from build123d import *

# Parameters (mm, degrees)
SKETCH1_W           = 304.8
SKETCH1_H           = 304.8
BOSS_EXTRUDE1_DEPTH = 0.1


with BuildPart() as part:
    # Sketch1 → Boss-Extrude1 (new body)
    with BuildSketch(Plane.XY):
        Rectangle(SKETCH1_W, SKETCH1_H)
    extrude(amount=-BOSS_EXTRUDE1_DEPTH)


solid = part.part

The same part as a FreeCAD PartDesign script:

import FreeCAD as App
import Part
import Sketcher
Q = App.Units.Quantity


def add_polygon(sketch, points):
    """Adds a closed chain of lines whose ends are joined by coincident constraints."""
    first, n = sketch.GeometryCount, len(points)
    for a, b in zip(points, points[1:] + points[:1]):
        sketch.addGeometry(Part.LineSegment(App.Vector(*a, 0), App.Vector(*b, 0)), False)
    for i in range(n):
        sketch.addConstraint(Sketcher.Constraint("Coincident", first + i, 2, first + (i + 1) % n, 1))

doc = App.newDocument("Part")
body = doc.addObject("PartDesign::Body", "Body")

# Sketch on XY plane
sketch1 = body.newObject("Sketcher::SketchObject", "Sketch")
sketch1.AttachmentSupport = (doc.getObject("XY_Plane"), [""])
sketch1.MapMode = "FlatFace"
add_polygon(sketch1, [(-152, 152), (-152, -152), (152, -152), (152, 152)])  # lines 0-3
sketch1.addConstraint(Sketcher.Constraint("Vertical", 0))
sketch1.addConstraint(Sketcher.Constraint("Horizontal", 1))
sketch1.addConstraint(Sketcher.Constraint("Vertical", 2))
sketch1.addConstraint(Sketcher.Constraint("Horizontal", 3))
sketch1.addConstraint(Sketcher.Constraint("Symmetric", 0, 2, 2, 2, -1, 1))
sketch1.addConstraint(Sketcher.Constraint("Equal", 3, 0))
sketch1.addConstraint(Sketcher.Constraint("DistanceX", 1, 1, 1, 2, Q("304.8 mm")))
pad1 = body.newObject("PartDesign::Pad", "Pad")
pad1.Profile = sketch1
pad1.Length = 0.1
pad1.Reversed = True

doc.recompute()
